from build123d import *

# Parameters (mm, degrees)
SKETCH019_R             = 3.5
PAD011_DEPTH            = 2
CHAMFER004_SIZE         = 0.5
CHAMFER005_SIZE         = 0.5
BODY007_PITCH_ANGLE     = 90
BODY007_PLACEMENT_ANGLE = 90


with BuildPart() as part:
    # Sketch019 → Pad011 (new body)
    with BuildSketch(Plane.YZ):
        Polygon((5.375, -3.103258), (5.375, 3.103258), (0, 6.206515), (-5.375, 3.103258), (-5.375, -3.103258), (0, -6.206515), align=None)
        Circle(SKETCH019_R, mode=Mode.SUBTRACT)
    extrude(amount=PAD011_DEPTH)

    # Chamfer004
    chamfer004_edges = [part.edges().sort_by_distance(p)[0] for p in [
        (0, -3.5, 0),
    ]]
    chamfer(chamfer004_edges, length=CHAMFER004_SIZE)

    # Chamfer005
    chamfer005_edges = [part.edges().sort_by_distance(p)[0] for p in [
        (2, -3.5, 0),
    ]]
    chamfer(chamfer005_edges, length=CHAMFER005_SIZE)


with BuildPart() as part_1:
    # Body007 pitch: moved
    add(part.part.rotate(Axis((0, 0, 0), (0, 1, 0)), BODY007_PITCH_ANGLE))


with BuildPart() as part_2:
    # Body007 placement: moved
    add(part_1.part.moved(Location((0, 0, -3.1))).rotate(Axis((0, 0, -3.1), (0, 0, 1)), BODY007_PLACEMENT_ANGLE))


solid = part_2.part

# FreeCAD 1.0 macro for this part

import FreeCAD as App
import Part
import Sketcher

V = App.Vector
Q = App.Units.Quantity


def edges_at(feature, points):
    """Names of the edges that pass closest to the given points."""
    edges = feature.Shape.Edges
    near = lambda p: min(range(len(edges)), key=lambda i: edges[i].distToShape(Part.Vertex(*p))[0])
    return sorted({f"Edge{near(p) + 1}" for p in points})

doc = App.newDocument("Part")
body = doc.addObject("PartDesign::Body", "Body")

# Sketch on YZ plane
sketch1 = body.newObject("Sketcher::SketchObject", "Sketch")
sketch1.AttachmentSupport = (doc.getObject("YZ_Plane"), [""])
sketch1.MapMode = "FlatFace"
sketch1.addGeometry(Part.LineSegment(V(5.4, -3.1, 0), V(5.4, 3.1, 0)), False)
sketch1.addGeometry(Part.LineSegment(V(5.4, 3.1, 0), V(0, 6.2, 0)), False)
sketch1.addGeometry(Part.LineSegment(V(0, 6.2, 0), V(-5.4, 3.1, 0)), False)
sketch1.addGeometry(Part.LineSegment(V(-5.4, 3.1, 0), V(-5.4, -3.1, 0)), False)
sketch1.addGeometry(Part.LineSegment(V(-5.4, -3.1, 0), V(0, -6.2, 0)), False)
sketch1.addGeometry(Part.LineSegment(V(0, -6.2, 0), V(5.4, -3.1, 0)), False)
sketch1.addGeometry(Part.Circle(V(0, 0, 0), V(0, 0, 1), 3.5), False)
sketch1.addConstraint(Sketcher.Constraint("Coincident", 0, 2, 1, 1))
sketch1.addConstraint(Sketcher.Constraint("Coincident", 1, 2, 2, 1))
sketch1.addConstraint(Sketcher.Constraint("Coincident", 2, 2, 3, 1))
sketch1.addConstraint(Sketcher.Constraint("Coincident", 3, 2, 4, 1))
sketch1.addConstraint(Sketcher.Constraint("Coincident", 4, 2, 5, 1))
sketch1.addConstraint(Sketcher.Constraint("Coincident", 5, 2, 0, 1))
sketch1.addConstraint(Sketcher.Constraint("Vertical", 0))
sketch1.addConstraint(Sketcher.Constraint("Vertical", 3))
sketch1.addConstraint(Sketcher.Constraint("Coincident", 6, 3, -1, 1))
sketch1.addConstraint(Sketcher.Constraint("Symmetric", 0, 2, 3, 2, -1, 1))
sketch1.addConstraint(Sketcher.Constraint("Symmetric", 1, 2, 4, 2, -1, 1))
sketch1.addConstraint(Sketcher.Constraint("PointOnObject", 1, 2, -2))
sketch1.addConstraint(Sketcher.Constraint("Parallel", 2, 5))
sketch1.addConstraint(Sketcher.Constraint("Horizontal", 0, 2, 2, 2))
sketch1.addConstraint(Sketcher.Constraint("Diameter", 6, 7.0))
sketch1.addConstraint(Sketcher.Constraint("Angle", 1, Q("150.000006 deg")))
sketch1.addConstraint(Sketcher.Constraint("DistanceX", 2, 2, 0, 2, 10.75))
sketch1.addConstraint(Sketcher.Constraint("DistanceY", 0, 1, 0, 2, 6.206516))
pad1 = body.newObject("PartDesign::Pad", "Pad")
pad1.Profile = sketch1
pad1.Length = 2
doc.recompute()

chamfer = body.newObject("PartDesign::Chamfer", "Chamfer")
chamfer.Base = (pad1, edges_at(pad1, [(0, -3.5, 0)]))
chamfer.Size = 0.5
doc.recompute()

chamfer2 = body.newObject("PartDesign::Chamfer", "Chamfer001")
chamfer2.Base = (chamfer, edges_at(chamfer, [(2, -3.5, 0)]))
chamfer2.Size = 0.5
body2 = doc.addObject("PartDesign::Body", "Body001")
doc.recompute()

body.Placement = App.Placement(V(0, 0, 0), App.Rotation(V(0, 1, 0), 90))
boolean = body2.newObject("PartDesign::Boolean", "Boolean")
boolean.Type = "Fuse"
boolean.addObjects([body])
body3 = doc.addObject("PartDesign::Body", "Body002")
doc.recompute()

body2.Placement = App.Placement(V(0, 0, -3.1), App.Rotation(V(0, 0, 1), 90))
boolean2 = body3.newObject("PartDesign::Boolean", "Boolean001")
boolean2.Type = "Fuse"
boolean2.addObjects([body2])

doc.recompute()
